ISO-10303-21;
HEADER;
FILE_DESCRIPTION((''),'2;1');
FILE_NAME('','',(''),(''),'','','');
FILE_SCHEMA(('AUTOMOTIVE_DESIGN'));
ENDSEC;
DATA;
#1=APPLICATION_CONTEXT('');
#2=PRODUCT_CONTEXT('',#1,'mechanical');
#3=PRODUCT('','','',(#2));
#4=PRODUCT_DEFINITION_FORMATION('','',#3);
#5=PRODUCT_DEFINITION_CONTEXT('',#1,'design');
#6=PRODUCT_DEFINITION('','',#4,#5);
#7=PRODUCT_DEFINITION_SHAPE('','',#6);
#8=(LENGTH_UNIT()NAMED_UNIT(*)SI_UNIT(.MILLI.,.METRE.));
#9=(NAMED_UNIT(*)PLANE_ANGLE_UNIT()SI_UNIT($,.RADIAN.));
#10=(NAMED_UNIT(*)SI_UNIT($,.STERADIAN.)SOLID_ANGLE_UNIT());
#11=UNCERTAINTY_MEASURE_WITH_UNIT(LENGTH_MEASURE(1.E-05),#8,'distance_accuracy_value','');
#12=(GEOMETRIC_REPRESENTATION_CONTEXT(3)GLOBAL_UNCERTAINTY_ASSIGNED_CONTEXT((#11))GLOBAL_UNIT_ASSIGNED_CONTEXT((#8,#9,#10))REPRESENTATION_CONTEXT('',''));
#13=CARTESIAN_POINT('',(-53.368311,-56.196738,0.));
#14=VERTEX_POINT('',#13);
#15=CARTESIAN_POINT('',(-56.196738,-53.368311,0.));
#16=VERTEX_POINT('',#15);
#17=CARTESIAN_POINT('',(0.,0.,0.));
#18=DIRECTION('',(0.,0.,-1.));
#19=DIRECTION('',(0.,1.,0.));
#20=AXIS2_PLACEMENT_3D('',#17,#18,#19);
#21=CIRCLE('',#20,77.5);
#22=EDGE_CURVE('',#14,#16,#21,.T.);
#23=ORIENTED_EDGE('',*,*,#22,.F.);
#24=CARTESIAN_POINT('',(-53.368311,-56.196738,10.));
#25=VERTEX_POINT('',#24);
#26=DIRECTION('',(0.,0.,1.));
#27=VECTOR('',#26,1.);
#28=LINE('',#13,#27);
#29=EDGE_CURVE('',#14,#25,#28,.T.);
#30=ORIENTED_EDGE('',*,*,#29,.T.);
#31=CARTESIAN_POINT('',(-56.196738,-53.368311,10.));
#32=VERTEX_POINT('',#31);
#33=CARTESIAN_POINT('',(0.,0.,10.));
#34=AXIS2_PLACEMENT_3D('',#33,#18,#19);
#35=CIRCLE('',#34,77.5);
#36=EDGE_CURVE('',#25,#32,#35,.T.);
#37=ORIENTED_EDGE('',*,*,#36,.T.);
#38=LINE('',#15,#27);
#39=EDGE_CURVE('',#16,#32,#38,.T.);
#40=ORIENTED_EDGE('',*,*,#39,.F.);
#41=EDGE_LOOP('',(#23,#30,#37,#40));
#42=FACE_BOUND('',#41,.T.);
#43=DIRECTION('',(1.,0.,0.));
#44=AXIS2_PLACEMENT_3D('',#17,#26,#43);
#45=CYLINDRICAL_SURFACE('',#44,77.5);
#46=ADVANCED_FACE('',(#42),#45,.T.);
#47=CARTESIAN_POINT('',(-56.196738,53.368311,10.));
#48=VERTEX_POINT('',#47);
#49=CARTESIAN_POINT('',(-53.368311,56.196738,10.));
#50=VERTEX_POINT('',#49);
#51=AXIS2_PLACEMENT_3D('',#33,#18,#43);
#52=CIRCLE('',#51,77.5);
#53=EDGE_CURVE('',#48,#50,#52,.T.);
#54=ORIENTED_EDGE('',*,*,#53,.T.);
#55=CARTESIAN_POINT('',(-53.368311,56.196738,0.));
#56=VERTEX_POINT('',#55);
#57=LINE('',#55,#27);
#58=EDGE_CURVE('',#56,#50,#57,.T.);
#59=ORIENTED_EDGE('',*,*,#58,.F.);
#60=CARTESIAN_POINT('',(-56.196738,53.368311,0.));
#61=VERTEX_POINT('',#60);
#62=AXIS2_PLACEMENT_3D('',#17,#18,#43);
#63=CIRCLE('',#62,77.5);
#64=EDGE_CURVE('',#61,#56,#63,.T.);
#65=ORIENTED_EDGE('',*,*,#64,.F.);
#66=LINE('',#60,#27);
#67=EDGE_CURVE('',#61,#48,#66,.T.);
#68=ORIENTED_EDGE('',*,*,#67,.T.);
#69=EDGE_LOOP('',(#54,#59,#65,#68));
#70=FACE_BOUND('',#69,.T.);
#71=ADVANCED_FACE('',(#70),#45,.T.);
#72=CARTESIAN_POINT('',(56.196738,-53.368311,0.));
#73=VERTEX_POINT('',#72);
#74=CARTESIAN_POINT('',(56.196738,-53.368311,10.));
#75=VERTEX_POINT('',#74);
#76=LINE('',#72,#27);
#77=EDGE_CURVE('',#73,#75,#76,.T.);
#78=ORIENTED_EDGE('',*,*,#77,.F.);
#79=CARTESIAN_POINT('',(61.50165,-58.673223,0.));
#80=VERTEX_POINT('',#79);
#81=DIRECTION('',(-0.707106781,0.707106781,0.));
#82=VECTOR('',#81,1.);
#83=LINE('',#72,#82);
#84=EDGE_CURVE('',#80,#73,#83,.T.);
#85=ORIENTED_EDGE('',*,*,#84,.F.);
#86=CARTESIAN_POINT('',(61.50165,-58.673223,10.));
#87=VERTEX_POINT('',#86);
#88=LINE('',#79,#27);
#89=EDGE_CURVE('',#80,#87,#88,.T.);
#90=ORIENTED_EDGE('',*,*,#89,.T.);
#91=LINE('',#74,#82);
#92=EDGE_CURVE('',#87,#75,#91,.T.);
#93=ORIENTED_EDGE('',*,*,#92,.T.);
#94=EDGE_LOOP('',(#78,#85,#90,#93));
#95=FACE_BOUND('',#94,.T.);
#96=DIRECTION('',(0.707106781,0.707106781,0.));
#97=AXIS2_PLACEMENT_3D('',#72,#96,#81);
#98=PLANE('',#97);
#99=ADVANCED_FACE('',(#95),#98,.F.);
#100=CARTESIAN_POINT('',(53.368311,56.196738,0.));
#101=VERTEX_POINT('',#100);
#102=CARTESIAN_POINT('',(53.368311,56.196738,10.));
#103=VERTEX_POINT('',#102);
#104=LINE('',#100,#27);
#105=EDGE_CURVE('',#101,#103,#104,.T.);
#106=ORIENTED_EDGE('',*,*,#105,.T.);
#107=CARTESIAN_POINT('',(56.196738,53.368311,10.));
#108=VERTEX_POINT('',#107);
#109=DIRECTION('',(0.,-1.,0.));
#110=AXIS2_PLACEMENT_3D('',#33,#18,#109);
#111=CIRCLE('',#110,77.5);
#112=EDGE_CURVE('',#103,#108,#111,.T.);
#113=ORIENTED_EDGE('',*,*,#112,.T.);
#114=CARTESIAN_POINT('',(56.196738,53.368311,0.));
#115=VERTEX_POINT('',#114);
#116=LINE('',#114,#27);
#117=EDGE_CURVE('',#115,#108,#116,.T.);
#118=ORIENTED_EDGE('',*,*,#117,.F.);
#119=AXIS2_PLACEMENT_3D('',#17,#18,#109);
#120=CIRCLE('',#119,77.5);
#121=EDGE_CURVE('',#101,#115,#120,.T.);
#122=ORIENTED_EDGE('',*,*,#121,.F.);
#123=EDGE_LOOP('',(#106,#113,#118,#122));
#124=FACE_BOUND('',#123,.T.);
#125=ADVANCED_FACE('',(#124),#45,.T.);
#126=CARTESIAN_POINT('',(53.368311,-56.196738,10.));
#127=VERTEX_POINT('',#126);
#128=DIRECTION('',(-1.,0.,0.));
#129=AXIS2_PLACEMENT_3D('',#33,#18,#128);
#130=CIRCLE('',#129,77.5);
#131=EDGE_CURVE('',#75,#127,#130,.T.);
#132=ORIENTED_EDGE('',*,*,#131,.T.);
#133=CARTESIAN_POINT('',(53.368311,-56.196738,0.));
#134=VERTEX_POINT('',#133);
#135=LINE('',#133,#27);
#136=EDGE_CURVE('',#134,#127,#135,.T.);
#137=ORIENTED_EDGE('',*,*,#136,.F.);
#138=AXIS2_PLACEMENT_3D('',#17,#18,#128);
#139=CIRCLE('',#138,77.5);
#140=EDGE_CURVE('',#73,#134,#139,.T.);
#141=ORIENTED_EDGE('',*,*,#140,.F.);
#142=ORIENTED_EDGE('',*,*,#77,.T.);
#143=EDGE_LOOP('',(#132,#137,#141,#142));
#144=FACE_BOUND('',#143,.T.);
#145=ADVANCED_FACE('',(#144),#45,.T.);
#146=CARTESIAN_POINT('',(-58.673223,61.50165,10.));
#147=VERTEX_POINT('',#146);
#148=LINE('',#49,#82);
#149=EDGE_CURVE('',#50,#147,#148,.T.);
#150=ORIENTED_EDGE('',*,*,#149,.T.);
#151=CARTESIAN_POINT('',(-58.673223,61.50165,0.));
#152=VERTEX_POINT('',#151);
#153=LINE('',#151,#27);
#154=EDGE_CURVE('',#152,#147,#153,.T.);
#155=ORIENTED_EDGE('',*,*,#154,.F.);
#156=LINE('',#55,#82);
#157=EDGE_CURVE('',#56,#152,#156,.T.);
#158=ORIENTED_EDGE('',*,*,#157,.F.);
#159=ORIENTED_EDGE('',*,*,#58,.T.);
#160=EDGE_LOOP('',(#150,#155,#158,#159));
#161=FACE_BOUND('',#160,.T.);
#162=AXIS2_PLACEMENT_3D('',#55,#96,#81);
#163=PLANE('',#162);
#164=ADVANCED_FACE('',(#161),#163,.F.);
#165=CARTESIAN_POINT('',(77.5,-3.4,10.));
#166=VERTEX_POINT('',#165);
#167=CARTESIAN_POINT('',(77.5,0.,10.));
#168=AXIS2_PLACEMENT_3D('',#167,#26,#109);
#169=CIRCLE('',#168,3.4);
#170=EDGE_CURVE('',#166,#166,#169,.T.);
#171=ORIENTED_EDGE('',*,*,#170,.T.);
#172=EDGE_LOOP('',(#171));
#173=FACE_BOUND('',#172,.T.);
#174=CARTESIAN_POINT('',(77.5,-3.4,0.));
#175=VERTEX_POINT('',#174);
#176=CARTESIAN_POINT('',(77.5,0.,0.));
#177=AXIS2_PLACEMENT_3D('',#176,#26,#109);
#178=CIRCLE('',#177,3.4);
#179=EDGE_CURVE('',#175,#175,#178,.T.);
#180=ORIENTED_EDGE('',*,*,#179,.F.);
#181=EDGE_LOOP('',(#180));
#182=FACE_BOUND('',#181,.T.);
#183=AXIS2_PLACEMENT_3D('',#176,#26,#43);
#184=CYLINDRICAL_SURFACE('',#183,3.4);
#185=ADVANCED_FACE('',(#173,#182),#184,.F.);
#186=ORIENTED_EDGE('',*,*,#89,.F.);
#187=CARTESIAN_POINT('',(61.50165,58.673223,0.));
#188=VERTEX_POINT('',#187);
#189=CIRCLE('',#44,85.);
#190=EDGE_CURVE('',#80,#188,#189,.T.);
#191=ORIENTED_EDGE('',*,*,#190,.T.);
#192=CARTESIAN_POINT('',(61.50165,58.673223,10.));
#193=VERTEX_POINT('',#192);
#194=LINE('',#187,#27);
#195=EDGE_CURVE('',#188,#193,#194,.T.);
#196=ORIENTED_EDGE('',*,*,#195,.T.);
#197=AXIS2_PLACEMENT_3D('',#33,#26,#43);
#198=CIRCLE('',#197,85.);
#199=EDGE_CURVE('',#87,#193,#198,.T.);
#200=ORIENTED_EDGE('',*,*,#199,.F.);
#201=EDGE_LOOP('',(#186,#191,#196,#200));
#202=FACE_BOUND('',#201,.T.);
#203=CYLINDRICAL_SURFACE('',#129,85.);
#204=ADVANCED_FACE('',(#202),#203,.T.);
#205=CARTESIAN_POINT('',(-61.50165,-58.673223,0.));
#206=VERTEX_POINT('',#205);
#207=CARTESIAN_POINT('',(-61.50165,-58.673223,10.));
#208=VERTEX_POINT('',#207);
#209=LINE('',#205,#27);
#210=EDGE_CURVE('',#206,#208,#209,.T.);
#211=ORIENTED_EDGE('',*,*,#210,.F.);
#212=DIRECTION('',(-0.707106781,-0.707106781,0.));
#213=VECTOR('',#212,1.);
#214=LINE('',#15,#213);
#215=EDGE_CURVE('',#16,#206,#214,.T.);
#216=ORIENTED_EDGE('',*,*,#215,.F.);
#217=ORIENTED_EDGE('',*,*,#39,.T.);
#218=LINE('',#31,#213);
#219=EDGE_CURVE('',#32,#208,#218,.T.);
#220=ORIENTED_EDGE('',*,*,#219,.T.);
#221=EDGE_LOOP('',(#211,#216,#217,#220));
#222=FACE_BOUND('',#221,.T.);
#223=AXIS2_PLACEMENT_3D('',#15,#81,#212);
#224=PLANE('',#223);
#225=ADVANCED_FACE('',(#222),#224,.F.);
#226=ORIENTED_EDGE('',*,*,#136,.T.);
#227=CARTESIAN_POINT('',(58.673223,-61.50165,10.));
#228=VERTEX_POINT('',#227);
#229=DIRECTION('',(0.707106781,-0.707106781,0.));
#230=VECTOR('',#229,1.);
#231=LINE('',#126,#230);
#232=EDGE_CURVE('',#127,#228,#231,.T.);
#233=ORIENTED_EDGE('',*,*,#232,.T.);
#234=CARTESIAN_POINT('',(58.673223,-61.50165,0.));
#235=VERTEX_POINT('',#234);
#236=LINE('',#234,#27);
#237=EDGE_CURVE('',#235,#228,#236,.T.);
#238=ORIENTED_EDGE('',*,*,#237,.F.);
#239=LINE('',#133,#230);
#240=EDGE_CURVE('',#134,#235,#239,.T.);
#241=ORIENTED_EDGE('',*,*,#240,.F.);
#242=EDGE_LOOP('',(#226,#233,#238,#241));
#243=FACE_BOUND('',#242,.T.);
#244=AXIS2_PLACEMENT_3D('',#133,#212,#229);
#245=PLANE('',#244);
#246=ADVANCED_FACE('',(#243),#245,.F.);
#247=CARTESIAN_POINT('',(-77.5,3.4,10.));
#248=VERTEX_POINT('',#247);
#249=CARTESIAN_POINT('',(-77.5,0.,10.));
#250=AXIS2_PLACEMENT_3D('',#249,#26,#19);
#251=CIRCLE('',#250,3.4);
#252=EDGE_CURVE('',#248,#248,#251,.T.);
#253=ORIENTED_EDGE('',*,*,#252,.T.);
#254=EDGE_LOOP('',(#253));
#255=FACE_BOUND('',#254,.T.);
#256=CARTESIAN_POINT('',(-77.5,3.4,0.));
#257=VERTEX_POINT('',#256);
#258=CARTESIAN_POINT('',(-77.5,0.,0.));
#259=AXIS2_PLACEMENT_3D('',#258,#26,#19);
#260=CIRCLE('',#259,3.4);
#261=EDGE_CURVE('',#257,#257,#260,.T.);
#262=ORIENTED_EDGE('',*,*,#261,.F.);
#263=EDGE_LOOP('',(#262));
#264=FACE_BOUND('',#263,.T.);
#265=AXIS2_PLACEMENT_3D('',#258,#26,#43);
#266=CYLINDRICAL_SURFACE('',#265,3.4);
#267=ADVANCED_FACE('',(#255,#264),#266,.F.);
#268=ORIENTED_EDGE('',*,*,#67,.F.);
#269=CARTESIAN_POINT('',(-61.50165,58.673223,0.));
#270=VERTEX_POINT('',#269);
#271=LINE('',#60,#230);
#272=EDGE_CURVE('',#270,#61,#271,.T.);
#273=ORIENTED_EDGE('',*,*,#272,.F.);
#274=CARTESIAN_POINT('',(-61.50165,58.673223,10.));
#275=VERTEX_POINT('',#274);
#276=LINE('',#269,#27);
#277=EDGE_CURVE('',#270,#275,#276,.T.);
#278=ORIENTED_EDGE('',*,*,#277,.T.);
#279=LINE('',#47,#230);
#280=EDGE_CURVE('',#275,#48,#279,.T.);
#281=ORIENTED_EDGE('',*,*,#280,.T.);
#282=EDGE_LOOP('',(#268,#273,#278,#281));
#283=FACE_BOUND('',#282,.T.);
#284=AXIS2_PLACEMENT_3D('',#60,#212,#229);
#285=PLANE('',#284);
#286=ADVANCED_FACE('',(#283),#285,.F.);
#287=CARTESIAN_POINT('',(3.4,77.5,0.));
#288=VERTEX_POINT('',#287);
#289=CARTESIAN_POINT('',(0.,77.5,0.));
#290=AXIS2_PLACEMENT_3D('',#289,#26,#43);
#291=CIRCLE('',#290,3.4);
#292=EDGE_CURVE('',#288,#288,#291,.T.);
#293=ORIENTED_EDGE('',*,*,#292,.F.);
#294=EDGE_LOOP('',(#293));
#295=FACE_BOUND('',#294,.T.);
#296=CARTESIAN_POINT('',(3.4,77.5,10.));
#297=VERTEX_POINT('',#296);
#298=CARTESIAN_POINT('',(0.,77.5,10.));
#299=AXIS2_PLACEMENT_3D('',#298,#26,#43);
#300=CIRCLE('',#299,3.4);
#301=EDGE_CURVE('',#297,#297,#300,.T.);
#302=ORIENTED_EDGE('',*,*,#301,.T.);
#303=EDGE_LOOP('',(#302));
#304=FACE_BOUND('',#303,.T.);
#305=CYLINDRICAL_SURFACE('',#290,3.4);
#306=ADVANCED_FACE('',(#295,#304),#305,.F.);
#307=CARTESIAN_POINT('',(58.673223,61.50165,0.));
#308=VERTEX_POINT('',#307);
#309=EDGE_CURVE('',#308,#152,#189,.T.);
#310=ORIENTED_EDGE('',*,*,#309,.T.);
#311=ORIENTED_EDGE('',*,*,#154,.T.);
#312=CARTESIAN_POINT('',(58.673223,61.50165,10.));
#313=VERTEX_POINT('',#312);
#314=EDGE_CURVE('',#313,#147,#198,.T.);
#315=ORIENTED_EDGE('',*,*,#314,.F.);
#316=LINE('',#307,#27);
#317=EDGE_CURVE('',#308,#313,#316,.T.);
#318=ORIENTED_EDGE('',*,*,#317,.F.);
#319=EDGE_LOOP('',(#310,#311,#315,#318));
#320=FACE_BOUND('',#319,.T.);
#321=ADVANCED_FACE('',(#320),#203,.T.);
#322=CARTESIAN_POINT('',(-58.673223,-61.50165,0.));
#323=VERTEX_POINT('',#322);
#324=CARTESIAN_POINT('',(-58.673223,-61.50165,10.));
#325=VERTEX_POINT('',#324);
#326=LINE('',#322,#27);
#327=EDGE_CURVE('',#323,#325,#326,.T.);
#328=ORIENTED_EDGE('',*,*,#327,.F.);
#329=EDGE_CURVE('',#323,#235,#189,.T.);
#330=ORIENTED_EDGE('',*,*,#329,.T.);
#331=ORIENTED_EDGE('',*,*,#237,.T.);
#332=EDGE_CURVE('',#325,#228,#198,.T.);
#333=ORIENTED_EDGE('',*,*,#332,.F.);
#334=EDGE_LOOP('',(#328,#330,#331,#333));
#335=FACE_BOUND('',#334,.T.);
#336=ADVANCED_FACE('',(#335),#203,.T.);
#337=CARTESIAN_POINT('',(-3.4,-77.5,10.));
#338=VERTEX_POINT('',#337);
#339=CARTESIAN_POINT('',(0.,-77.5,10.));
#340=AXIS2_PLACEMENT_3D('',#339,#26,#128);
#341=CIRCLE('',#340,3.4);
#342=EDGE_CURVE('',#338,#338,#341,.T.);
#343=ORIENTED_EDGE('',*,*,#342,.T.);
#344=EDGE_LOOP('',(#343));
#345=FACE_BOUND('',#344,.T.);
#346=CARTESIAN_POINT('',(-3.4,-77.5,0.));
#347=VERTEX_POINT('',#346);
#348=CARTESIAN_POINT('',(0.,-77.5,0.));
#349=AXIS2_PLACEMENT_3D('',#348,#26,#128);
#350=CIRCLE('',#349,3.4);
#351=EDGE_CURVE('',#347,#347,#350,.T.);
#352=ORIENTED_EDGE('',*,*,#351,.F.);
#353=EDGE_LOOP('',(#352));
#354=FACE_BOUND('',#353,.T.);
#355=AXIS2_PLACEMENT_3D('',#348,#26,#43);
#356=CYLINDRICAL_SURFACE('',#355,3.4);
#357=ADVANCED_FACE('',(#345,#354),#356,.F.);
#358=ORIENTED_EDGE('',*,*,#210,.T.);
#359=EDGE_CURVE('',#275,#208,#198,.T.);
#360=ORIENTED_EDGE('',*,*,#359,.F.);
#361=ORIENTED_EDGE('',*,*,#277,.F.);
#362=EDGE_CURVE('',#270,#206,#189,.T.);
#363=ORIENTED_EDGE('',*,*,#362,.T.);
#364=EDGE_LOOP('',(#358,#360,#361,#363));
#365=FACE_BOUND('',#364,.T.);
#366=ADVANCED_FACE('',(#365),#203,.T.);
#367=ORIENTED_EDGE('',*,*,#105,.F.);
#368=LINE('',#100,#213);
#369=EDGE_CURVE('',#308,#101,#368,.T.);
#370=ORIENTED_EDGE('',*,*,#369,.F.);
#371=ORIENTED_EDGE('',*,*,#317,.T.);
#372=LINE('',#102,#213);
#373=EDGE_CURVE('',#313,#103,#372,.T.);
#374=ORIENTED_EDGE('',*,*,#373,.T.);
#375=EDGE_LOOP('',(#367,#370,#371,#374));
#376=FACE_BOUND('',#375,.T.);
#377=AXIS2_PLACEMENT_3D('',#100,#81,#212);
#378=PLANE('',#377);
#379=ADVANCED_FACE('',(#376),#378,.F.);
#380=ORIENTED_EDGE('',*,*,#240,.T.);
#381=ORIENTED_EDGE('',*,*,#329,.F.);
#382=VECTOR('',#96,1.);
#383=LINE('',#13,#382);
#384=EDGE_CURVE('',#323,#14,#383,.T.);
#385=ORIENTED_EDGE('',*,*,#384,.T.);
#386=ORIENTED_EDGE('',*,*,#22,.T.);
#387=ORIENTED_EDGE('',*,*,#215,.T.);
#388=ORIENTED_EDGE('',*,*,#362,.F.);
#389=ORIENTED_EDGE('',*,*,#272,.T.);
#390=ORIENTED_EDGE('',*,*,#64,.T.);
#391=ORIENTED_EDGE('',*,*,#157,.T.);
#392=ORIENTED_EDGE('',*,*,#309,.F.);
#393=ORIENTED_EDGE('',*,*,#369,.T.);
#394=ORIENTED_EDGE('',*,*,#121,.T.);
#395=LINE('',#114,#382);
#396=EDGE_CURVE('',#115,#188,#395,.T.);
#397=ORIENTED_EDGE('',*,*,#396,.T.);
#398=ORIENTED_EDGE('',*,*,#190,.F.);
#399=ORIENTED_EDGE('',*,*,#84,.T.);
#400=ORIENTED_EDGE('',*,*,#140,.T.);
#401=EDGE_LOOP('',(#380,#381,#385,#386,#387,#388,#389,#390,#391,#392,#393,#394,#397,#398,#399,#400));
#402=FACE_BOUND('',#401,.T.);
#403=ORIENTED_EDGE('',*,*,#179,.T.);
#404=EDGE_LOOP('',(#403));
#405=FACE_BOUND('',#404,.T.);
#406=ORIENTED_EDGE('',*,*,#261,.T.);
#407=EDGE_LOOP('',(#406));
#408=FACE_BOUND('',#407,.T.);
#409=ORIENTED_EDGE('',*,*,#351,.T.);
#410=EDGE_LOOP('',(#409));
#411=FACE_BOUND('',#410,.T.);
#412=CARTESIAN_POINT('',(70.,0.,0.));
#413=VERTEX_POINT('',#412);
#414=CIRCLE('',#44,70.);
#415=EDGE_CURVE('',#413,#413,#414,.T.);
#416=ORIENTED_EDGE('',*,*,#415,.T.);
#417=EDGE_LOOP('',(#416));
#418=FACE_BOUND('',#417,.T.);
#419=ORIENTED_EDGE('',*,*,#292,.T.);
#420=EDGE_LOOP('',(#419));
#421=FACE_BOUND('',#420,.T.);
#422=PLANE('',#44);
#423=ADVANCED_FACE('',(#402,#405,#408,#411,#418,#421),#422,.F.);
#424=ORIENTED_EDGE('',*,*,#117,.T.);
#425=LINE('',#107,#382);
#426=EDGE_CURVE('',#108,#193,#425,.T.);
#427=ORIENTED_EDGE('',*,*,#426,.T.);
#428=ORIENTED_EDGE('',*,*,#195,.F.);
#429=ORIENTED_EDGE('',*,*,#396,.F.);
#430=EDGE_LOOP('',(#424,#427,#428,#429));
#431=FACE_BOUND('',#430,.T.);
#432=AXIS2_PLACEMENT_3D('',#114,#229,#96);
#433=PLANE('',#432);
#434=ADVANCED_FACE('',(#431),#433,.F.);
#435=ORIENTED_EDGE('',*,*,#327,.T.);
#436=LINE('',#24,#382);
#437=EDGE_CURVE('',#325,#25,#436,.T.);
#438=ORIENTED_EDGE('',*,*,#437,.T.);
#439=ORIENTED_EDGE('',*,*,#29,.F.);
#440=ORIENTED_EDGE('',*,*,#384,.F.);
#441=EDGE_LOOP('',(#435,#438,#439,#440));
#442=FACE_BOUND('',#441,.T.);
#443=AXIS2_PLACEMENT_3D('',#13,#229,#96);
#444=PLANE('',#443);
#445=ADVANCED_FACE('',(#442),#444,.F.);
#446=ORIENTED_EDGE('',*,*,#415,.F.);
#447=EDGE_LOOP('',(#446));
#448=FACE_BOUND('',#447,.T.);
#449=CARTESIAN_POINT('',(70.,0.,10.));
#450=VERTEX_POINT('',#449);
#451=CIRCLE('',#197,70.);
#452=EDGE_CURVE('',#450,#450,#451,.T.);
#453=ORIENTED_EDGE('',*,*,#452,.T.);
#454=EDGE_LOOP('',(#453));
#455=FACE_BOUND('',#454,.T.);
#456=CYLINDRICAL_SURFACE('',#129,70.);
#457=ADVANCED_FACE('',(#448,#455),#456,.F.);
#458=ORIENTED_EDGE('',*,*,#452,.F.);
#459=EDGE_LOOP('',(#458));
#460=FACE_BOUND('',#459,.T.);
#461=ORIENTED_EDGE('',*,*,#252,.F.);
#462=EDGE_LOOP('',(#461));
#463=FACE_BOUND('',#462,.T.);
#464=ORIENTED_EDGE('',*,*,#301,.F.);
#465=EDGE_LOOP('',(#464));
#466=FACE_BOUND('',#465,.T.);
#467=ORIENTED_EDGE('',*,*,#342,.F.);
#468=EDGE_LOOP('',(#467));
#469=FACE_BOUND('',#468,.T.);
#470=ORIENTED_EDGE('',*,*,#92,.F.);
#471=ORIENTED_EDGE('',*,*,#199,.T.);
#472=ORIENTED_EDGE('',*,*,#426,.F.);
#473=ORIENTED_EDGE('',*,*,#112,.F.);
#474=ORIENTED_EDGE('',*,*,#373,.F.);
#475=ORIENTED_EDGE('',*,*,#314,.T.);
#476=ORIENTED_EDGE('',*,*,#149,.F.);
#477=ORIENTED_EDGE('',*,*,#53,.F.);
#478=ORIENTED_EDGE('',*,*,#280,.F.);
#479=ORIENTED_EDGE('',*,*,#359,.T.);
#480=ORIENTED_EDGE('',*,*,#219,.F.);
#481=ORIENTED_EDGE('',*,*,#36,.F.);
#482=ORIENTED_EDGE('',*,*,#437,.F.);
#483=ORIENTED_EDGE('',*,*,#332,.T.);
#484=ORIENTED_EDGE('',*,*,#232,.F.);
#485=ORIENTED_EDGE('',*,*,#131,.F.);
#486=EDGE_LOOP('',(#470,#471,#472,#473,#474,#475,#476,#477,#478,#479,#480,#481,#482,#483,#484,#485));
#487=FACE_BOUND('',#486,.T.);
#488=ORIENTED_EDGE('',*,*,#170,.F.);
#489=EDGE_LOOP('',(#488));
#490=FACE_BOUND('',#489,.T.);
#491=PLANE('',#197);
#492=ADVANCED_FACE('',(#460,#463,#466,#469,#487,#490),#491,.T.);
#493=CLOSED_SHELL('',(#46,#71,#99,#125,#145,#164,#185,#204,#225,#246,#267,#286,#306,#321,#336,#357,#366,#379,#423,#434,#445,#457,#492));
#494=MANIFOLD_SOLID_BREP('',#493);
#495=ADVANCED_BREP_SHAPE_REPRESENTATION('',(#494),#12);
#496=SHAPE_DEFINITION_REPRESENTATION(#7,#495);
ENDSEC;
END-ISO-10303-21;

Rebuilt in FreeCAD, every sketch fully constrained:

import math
import FreeCAD as App
import Part
import Sketcher
from FreeCAD import Vector
Q = App.Units.Quantity

doc = App.newDocument("Part")
body = doc.addObject("PartDesign::Body", "Body")

# Sketch on XY plane
sketch1 = doc.addObject("Sketcher::SketchObject", "Sketch")
body.addObject(sketch1)
sketch1.AttachmentSupport = (doc.XY_Plane, [""])
sketch1.MapMode = "FlatFace"
sketch1.addGeometry([
    Part.Circle(Vector(0, 0, 0), Vector(0, 0, 1), 85),
    Part.Circle(Vector(0, 0, 0), Vector(0, 0, 1), 70),
], False)
sketch1.addConstraint([
    Sketcher.Constraint("Coincident", 0, 3, -1, 1),
    Sketcher.Constraint("Coincident", 1, 3, -1, 1),
    Sketcher.Constraint("Diameter", 0, Q("170 mm")),
    Sketcher.Constraint("Diameter", 1, Q("140 mm")),
])
pad1 = doc.addObject("PartDesign::Pad", "Pad")
body.addObject(pad1)
pad1.Profile = sketch1
pad1.Length = 10

# Sketch on XY plane
sketch2 = doc.addObject("Sketcher::SketchObject", "Sketch001")
body.addObject(sketch2)
sketch2.AttachmentSupport = (doc.XY_Plane, [""])
sketch2.MapMode = "FlatFace"
sketch2.addGeometry([
    Part.Circle(Vector(0, 77.5, 0), Vector(0, 0, 1), 3.4),  # 0
    Part.LineSegment(Vector(-61.5, 58.7, 0), Vector(-56.2, 53.4, 0)),  # 1
    Part.ArcOfCircle(Part.Circle(Vector(0, 0, 0), Vector(0, 0, 1), 77.5), math.radians(133.52), math.radians(136.48)),  # 2
    Part.LineSegment(Vector(-53.4, 56.2, 0), Vector(-58.7, 61.5, 0)),  # 3
    Part.ArcOfCircle(Part.Circle(Vector(0, 0, 0), Vector(0, 0, 1), 85), math.radians(133.65), math.radians(136.35)),  # 4
], False)
sketch2.addConstraint([
    Sketcher.Constraint("Coincident", 1, 2, 2, 2),
    Sketcher.Constraint("Coincident", 2, 1, 3, 1),
    Sketcher.Constraint("Coincident", 3, 2, 4, 1),
    Sketcher.Constraint("Coincident", 4, 2, 1, 1),
    Sketcher.Constraint("Coincident", 2, 3, -1, 1),
    Sketcher.Constraint("Coincident", 4, 3, -1, 1),
    Sketcher.Constraint("PointOnObject", 0, 3, -2),
    Sketcher.Constraint("Parallel", 1, 3),
    Sketcher.Constraint("Equal", 1, 3),
    Sketcher.Constraint("Diameter", 0, Q("6.8 mm")),
    Sketcher.Constraint("Radius", 2, Q("77.499998 mm")),
    Sketcher.Constraint("Angle", 1, Q("-45 deg")),
    Sketcher.Constraint("DistanceY", -1, 1, 0, 3, Q("77.5 mm")),
    Sketcher.Constraint("Radius", 4, Q("84.999998 mm")),
    Sketcher.Constraint("DistanceX", 1, 2, -1, 1, Q("56.196738 mm")),
])
pocket1 = doc.addObject("PartDesign::Pocket", "Pocket")
body.addObject(pocket1)
pocket1.Profile = sketch2
pocket1.Length = 10
pocket1.Reversed = True
doc.recompute()

polarpattern = doc.addObject("PartDesign::PolarPattern", "PolarPattern")
body.addObject(polarpattern)
polarpattern.Originals = [pocket1]
polarpattern.Axis = (doc.Z_Axis, [""])
polarpattern.Angle = 360
polarpattern.Occurrences = 4
body.Tip = polarpattern

doc.recompute()
